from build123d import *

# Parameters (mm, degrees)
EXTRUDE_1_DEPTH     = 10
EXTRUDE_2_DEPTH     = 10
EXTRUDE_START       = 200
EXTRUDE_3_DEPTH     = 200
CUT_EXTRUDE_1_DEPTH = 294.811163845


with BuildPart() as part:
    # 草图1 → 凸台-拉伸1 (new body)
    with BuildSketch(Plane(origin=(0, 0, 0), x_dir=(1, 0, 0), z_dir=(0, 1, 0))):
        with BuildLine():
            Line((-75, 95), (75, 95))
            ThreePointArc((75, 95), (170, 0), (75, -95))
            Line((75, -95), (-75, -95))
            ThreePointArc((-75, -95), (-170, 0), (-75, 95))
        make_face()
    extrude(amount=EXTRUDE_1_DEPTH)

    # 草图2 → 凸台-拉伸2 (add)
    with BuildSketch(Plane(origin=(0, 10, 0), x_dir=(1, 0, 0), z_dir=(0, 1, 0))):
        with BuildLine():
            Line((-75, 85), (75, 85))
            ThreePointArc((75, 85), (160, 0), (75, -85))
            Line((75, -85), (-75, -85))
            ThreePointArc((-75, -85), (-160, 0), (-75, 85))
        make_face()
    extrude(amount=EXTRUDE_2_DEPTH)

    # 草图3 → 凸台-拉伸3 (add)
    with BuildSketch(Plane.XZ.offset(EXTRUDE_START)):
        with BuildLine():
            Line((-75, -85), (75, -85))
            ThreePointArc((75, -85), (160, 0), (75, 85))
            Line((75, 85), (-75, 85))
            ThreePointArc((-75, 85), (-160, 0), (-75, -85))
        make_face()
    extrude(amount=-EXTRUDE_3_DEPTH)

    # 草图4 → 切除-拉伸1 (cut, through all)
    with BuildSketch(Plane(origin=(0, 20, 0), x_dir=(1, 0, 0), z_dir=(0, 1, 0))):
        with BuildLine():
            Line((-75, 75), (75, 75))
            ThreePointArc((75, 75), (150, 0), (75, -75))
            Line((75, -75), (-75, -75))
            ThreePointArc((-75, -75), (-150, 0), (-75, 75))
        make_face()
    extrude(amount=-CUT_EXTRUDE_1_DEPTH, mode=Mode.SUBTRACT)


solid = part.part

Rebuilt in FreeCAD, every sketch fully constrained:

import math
import FreeCAD as App
import Part
import Sketcher

doc = App.newDocument("Part")
body = doc.addObject("PartDesign::Body", "Body")

# Sketch on XZ plane
sketch1 = body.newObject("Sketcher::SketchObject", "Sketch")
sketch1.AttachmentSupport = (doc.getObject("XZ_Plane"), [""])
sketch1.MapMode = "FlatFace"
sketch1.addGeometry([
    Part.LineSegment(App.Vector(75, -95, 0), App.Vector(-75, -95, 0)),
    Part.ArcOfCircle(Part.Circle(App.Vector(-75, 0, 0), App.Vector(0, 0, 1), 95), math.radians(90), math.radians(270)),
    Part.LineSegment(App.Vector(-75, 95, 0), App.Vector(75, 95, 0)),
    Part.ArcOfCircle(Part.Circle(App.Vector(75, 0, 0), App.Vector(0, 0, 1), 95), math.radians(-90), math.radians(90)),
], False)
sketch1.addConstraint([
    Sketcher.Constraint("Tangent", 0, 2, 1, 2),
    Sketcher.Constraint("Tangent", 1, 1, 2, 1),
    Sketcher.Constraint("Tangent", 2, 2, 3, 2),
    Sketcher.Constraint("Tangent", 3, 1, 0, 1),
    Sketcher.Constraint("Horizontal", 0),
    Sketcher.Constraint("Horizontal", 2),
    Sketcher.Constraint("Symmetric", 1, 3, 3, 3, -1, 1),
    Sketcher.Constraint("Radius", 1, 95.0),
    Sketcher.Constraint("DistanceX", 0, 2, 0, 1, 150.0),
])
pad1 = body.newObject("PartDesign::Pad", "Pad")
pad1.Profile = sketch1
pad1.Length = 10
pad1.Reversed = True

# Sketch on XZ plane
sketch2 = body.newObject("Sketcher::SketchObject", "Sketch001")
sketch2.AttachmentSupport = (doc.getObject("XZ_Plane"), [""])
sketch2.MapMode = "FlatFace"
sketch2.AttachmentOffset = App.Placement(App.Vector(0, 0, -10), App.Rotation())
sketch2.addGeometry([
    Part.LineSegment(App.Vector(75, -85, 0), App.Vector(-75, -85, 0)),
    Part.ArcOfCircle(Part.Circle(App.Vector(-75, 0, 0), App.Vector(0, 0, 1), 85), math.radians(90), math.radians(270)),
    Part.LineSegment(App.Vector(-75, 85, 0), App.Vector(75, 85, 0)),
    Part.ArcOfCircle(Part.Circle(App.Vector(75, 0, 0), App.Vector(0, 0, 1), 85), math.radians(-90), math.radians(90)),
], False)
sketch2.addConstraint([
    Sketcher.Constraint("Tangent", 0, 2, 1, 2),
    Sketcher.Constraint("Tangent", 1, 1, 2, 1),
    Sketcher.Constraint("Tangent", 2, 2, 3, 2),
    Sketcher.Constraint("Tangent", 3, 1, 0, 1),
    Sketcher.Constraint("Horizontal", 0),
    Sketcher.Constraint("Horizontal", 2),
    Sketcher.Constraint("Symmetric", 1, 3, 3, 3, -1, 1),
    Sketcher.Constraint("Radius", 1, 85.0),
    Sketcher.Constraint("DistanceX", 0, 2, 0, 1, 150.0),
])
pad2 = body.newObject("PartDesign::Pad", "Pad001")
pad2.Profile = sketch2
pad2.Length = 10
pad2.Reversed = True

# Sketch on XZ plane
sketch3 = body.newObject("Sketcher::SketchObject", "Sketch002")
sketch3.AttachmentSupport = (doc.getObject("XZ_Plane"), [""])
sketch3.MapMode = "FlatFace"
sketch3.AttachmentOffset = App.Placement(App.Vector(0, 0, 200), App.Rotation())
sketch3.addGeometry([
    Part.LineSegment(App.Vector(-75, -85, 0), App.Vector(75, -85, 0)),
    Part.ArcOfCircle(Part.Circle(App.Vector(75, 0, 0), App.Vector(0, 0, 1), 85), math.radians(-90), math.radians(90)),
    Part.LineSegment(App.Vector(75, 85, 0), App.Vector(-75, 85, 0)),
    Part.ArcOfCircle(Part.Circle(App.Vector(-75, 0, 0), App.Vector(0, 0, 1), 85), math.radians(90), math.radians(270)),
], False)
sketch3.addConstraint([
    Sketcher.Constraint("Tangent", 0, 2, 1, 1),
    Sketcher.Constraint("Tangent", 1, 2, 2, 1),
    Sketcher.Constraint("Tangent", 2, 2, 3, 1),
    Sketcher.Constraint("Tangent", 3, 2, 0, 1),
    Sketcher.Constraint("Horizontal", 0),
    Sketcher.Constraint("Horizontal", 2),
    Sketcher.Constraint("Symmetric", 1, 3, 3, 3, -1, 1),
    Sketcher.Constraint("Radius", 1, 85.0),
    Sketcher.Constraint("DistanceX", 0, 1, 0, 2, 150.0),
])
pad3 = body.newObject("PartDesign::Pad", "Pad002")
pad3.Profile = sketch3
pad3.Length = 200
pad3.Reversed = True

# Sketch on XZ plane
sketch4 = body.newObject("Sketcher::SketchObject", "Sketch003")
sketch4.AttachmentSupport = (doc.getObject("XZ_Plane"), [""])
sketch4.MapMode = "FlatFace"
sketch4.AttachmentOffset = App.Placement(App.Vector(0, 0, -20), App.Rotation())
sketch4.addGeometry([
    Part.LineSegment(App.Vector(75, -75, 0), App.Vector(-75, -75, 0)),
    Part.ArcOfCircle(Part.Circle(App.Vector(-75, 0, 0), App.Vector(0, 0, 1), 75), math.radians(90), math.radians(270)),
    Part.LineSegment(App.Vector(-75, 75, 0), App.Vector(75, 75, 0)),
    Part.ArcOfCircle(Part.Circle(App.Vector(75, 0, 0), App.Vector(0, 0, 1), 75), math.radians(-90), math.radians(90)),
], False)
sketch4.addConstraint([
    Sketcher.Constraint("Tangent", 0, 2, 1, 2),
    Sketcher.Constraint("Tangent", 1, 1, 2, 1),
    Sketcher.Constraint("Tangent", 2, 2, 3, 2),
    Sketcher.Constraint("Tangent", 3, 1, 0, 1),
    Sketcher.Constraint("Horizontal", 0),
    Sketcher.Constraint("Horizontal", 2),
    Sketcher.Constraint("Symmetric", 1, 3, 3, 3, -1, 1),
    Sketcher.Constraint("Radius", 1, 75.0),
    Sketcher.Constraint("DistanceX", 0, 2, 0, 1, 150.0),
])
pocket1 = body.newObject("PartDesign::Pocket", "Pocket")
pocket1.Profile = sketch4
pocket1.Type = "ThroughAll"
pocket1.Reversed = True

doc.recompute()
